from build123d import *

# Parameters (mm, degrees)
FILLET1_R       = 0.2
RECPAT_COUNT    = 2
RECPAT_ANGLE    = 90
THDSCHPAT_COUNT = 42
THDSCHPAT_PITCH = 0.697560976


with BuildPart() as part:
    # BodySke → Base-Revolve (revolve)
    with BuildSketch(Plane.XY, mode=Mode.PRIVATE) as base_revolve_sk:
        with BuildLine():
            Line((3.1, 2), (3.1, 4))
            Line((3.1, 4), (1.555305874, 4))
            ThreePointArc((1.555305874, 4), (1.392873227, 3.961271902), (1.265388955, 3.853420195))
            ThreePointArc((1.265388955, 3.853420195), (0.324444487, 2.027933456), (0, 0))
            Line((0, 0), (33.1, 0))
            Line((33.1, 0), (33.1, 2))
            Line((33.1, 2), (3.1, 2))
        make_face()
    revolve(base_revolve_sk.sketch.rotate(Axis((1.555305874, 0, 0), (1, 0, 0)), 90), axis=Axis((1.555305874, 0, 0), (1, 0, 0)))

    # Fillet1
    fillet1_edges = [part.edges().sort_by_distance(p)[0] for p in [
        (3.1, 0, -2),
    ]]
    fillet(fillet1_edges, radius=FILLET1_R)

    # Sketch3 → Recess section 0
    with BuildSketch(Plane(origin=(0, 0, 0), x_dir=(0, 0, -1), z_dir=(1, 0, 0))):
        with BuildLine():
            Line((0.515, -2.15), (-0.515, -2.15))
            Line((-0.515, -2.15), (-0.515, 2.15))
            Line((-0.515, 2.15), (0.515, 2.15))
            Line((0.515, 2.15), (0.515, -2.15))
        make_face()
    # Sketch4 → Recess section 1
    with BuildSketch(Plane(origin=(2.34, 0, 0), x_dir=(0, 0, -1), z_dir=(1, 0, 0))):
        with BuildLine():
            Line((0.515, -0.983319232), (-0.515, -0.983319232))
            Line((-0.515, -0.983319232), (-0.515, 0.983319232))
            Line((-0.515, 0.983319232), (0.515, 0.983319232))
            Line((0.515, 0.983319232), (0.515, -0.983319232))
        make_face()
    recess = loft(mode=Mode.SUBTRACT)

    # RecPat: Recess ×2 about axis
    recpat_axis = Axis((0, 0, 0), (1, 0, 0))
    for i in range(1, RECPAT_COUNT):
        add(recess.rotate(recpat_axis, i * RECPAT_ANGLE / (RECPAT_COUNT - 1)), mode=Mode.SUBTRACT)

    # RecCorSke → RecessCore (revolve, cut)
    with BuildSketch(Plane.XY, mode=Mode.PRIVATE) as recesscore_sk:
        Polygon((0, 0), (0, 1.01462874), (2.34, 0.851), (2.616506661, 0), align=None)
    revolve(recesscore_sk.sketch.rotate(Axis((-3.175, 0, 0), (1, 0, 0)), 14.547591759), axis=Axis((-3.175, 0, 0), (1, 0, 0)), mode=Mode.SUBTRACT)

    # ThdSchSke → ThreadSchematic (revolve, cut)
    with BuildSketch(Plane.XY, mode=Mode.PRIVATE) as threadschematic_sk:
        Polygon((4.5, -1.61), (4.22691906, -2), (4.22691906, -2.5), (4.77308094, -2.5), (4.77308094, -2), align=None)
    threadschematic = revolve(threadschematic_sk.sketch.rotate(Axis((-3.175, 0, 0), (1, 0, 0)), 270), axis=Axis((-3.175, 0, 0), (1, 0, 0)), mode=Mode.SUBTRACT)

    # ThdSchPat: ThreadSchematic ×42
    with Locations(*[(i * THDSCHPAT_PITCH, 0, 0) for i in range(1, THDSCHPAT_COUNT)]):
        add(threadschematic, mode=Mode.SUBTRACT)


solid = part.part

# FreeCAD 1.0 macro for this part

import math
import FreeCAD as App
import Part
import Sketcher
Q = App.Units.Quantity


def edges_at(feature, points):
    """Names of the edges that pass closest to the given points."""
    edges = feature.Shape.Edges
    near = lambda p: min(range(len(edges)), key=lambda i: edges[i].distToShape(Part.Vertex(*p))[0])
    return sorted({f"Edge{near(p) + 1}" for p in points})

doc = App.newDocument("Part")
body = doc.addObject("PartDesign::Body", "Body")

sketch1 = doc.addObject("Sketcher::SketchObject", "Sketch")
body.addObject(sketch1)
sketch1.AttachmentSupport = (doc.XY_Plane, [""])
sketch1.MapMode = "FlatFace"
sketch1.addGeometry(Part.LineSegment(App.Vector(3.1, 2, 0), App.Vector(3.1, 4, 0)), False)
sketch1.addGeometry(Part.LineSegment(App.Vector(3.1, 4, 0), App.Vector(1.56, 4, 0)), False)
sketch1.addGeometry(Part.ArcOfCircle(Part.Circle(App.Vector(1.56, 3.64, 0), App.Vector(0, 0, 1), 0.36), math.radians(90), math.radians(144)), False)
sketch1.addGeometry(Part.ArcOfCircle(Part.Circle(App.Vector(6.5, 0, 0), App.Vector(0, 0, 1), 6.5), math.radians(144), math.radians(180)), False)
sketch1.addGeometry(Part.LineSegment(App.Vector(0, 0, 0), App.Vector(33.1, 0, 0)), False)
sketch1.addGeometry(Part.LineSegment(App.Vector(33.1, 0, 0), App.Vector(33.1, 2, 0)), False)
sketch1.addGeometry(Part.LineSegment(App.Vector(33.1, 2, 0), App.Vector(3.1, 2, 0)), False)
sketch1.addConstraint(Sketcher.Constraint("Coincident", 0, 2, 1, 1))
sketch1.addConstraint(Sketcher.Constraint("Tangent", 1, 2, 2, 1))
sketch1.addConstraint(Sketcher.Constraint("Tangent", 2, 2, 3, 1))
sketch1.addConstraint(Sketcher.Constraint("Coincident", 3, 2, 4, 1))
sketch1.addConstraint(Sketcher.Constraint("Coincident", 4, 2, 5, 1))
sketch1.addConstraint(Sketcher.Constraint("Coincident", 5, 2, 6, 1))
sketch1.addConstraint(Sketcher.Constraint("Coincident", 6, 2, 0, 1))
sketch1.addConstraint(Sketcher.Constraint("Vertical", 0))
sketch1.addConstraint(Sketcher.Constraint("Horizontal", 1))
sketch1.addConstraint(Sketcher.Constraint("Horizontal", 4))
sketch1.addConstraint(Sketcher.Constraint("Vertical", 5))
sketch1.addConstraint(Sketcher.Constraint("Horizontal", 6))
sketch1.addConstraint(Sketcher.Constraint("Coincident", 3, 2, -1, 1))
sketch1.addConstraint(Sketcher.Constraint("PointOnObject", 3, 3, -1))
sketch1.addConstraint(Sketcher.Constraint("Equal", 0, 5))
sketch1.addConstraint(Sketcher.Constraint("Radius", 3, 6.5))
sketch1.addConstraint(Sketcher.Constraint("DistanceX", 6, 2, 6, 1, 30.0))
sketch1.addConstraint(Sketcher.Constraint("DistanceY", 0, 1, 0, 2, 2.0))
sketch1.addConstraint(Sketcher.Constraint("Radius", 2, 0.36))
sketch1.addConstraint(Sketcher.Constraint("DistanceX", 4, 1, 4, 2, 33.1))
revolution = doc.addObject("PartDesign::Revolution", "Revolution")
body.addObject(revolution)
revolution.Profile = sketch1
revolution.ReferenceAxis = (sketch1, ["H_Axis"])
revolution.Angle = 360
doc.recompute()

fillet = doc.addObject("PartDesign::Fillet", "Fillet")
body.addObject(fillet)
fillet.Base = (revolution, edges_at(revolution, [(3.1, 0, -2)]))
fillet.Radius = 0.2

sketch2 = doc.addObject("Sketcher::SketchObject", "Sketch001")
body.addObject(sketch2)
sketch2.AttachmentSupport = (doc.YZ_Plane, [""])
sketch2.MapMode = "FlatFace"
sketch2.addGeometry(Part.LineSegment(App.Vector(-2.1, 0.5, 0), App.Vector(-2.1, -0.5, 0)), False)
sketch2.addGeometry(Part.LineSegment(App.Vector(-2.1, -0.5, 0), App.Vector(2.1, -0.5, 0)), False)
sketch2.addGeometry(Part.LineSegment(App.Vector(2.1, -0.5, 0), App.Vector(2.1, 0.5, 0)), False)
sketch2.addGeometry(Part.LineSegment(App.Vector(2.1, 0.5, 0), App.Vector(-2.1, 0.5, 0)), False)
sketch2.addConstraint(Sketcher.Constraint("Coincident", 0, 2, 1, 1))
sketch2.addConstraint(Sketcher.Constraint("Coincident", 1, 2, 2, 1))
sketch2.addConstraint(Sketcher.Constraint("Coincident", 2, 2, 3, 1))
sketch2.addConstraint(Sketcher.Constraint("Coincident", 3, 2, 0, 1))
sketch2.addConstraint(Sketcher.Constraint("Vertical", 0))
sketch2.addConstraint(Sketcher.Constraint("Horizontal", 1))
sketch2.addConstraint(Sketcher.Constraint("Vertical", 2))
sketch2.addConstraint(Sketcher.Constraint("Horizontal", 3))
sketch2.addConstraint(Sketcher.Constraint("Symmetric", 0, 2, 2, 2, -1, 1))
sketch2.addConstraint(Sketcher.Constraint("DistanceX", 1, 1, 1, 2, 4.3))
sketch2.addConstraint(Sketcher.Constraint("DistanceY", 0, 2, 0, 1, 1.03))

sketch3 = doc.addObject("Sketcher::SketchObject", "Sketch002")
body.addObject(sketch3)
sketch3.AttachmentSupport = (doc.YZ_Plane, [""])
sketch3.MapMode = "FlatFace"
sketch3.AttachmentOffset = App.Placement(App.Vector(0, 0, 2.34), App.Rotation())
sketch3.addGeometry(Part.LineSegment(App.Vector(-1, 0.5, 0), App.Vector(-1, -0.5, 0)), False)
sketch3.addGeometry(Part.LineSegment(App.Vector(-1, -0.5, 0), App.Vector(1, -0.5, 0)), False)
sketch3.addGeometry(Part.LineSegment(App.Vector(1, -0.5, 0), App.Vector(1, 0.5, 0)), False)
sketch3.addGeometry(Part.LineSegment(App.Vector(1, 0.5, 0), App.Vector(-1, 0.5, 0)), False)
sketch3.addConstraint(Sketcher.Constraint("Coincident", 0, 2, 1, 1))
sketch3.addConstraint(Sketcher.Constraint("Coincident", 1, 2, 2, 1))
sketch3.addConstraint(Sketcher.Constraint("Coincident", 2, 2, 3, 1))
sketch3.addConstraint(Sketcher.Constraint("Coincident", 3, 2, 0, 1))
sketch3.addConstraint(Sketcher.Constraint("Vertical", 0))
sketch3.addConstraint(Sketcher.Constraint("Horizontal", 1))
sketch3.addConstraint(Sketcher.Constraint("Vertical", 2))
sketch3.addConstraint(Sketcher.Constraint("Horizontal", 3))
sketch3.addConstraint(Sketcher.Constraint("Symmetric", 0, 2, 2, 2, -1, 1))
sketch3.addConstraint(Sketcher.Constraint("DistanceY", 0, 2, 0, 1, 1.03))
sketch3.addConstraint(Sketcher.Constraint("DistanceX", 1, 1, 1, 2, 1.966638))

subtractiveloft = doc.addObject("PartDesign::SubtractiveLoft", "SubtractiveLoft")
body.addObject(subtractiveloft)
subtractiveloft.Profile = sketch2
subtractiveloft.Sections = [sketch3]
doc.recompute()

polarpattern = doc.addObject("PartDesign::PolarPattern", "PolarPattern")
body.addObject(polarpattern)
polarpattern.Originals = [subtractiveloft]
polarpattern.Axis = (doc.X_Axis, [""])
polarpattern.Angle = 90
polarpattern.Occurrences = 2
body.Tip = polarpattern

sketch4 = doc.addObject("Sketcher::SketchObject", "Sketch003")
body.addObject(sketch4)
sketch4.AttachmentSupport = (doc.XY_Plane, [""])
sketch4.MapMode = "FlatFace"
sketch4.addGeometry(Part.LineSegment(App.Vector(0, 1, 0), App.Vector(0, 0, 0)), False)
sketch4.addGeometry(Part.LineSegment(App.Vector(0, 0, 0), App.Vector(2.6, 0, 0)), False)
sketch4.addGeometry(Part.LineSegment(App.Vector(2.6, 0, 0), App.Vector(2.3, 0.9, 0)), False)
sketch4.addGeometry(Part.LineSegment(App.Vector(2.3, 0.9, 0), App.Vector(0, 1, 0)), False)
sketch4.addConstraint(Sketcher.Constraint("Coincident", 0, 2, 1, 1))
sketch4.addConstraint(Sketcher.Constraint("Coincident", 1, 2, 2, 1))
sketch4.addConstraint(Sketcher.Constraint("Coincident", 2, 2, 3, 1))
sketch4.addConstraint(Sketcher.Constraint("Coincident", 3, 2, 0, 1))
sketch4.addConstraint(Sketcher.Constraint("Vertical", 0))
sketch4.addConstraint(Sketcher.Constraint("Horizontal", 1))
sketch4.addConstraint(Sketcher.Constraint("Coincident", 0, 2, -1, 1))
sketch4.addConstraint(Sketcher.Constraint("Angle", 2, Q("108 deg")))
sketch4.addConstraint(Sketcher.Constraint("Angle", 3, Q("176 deg")))
sketch4.addConstraint(Sketcher.Constraint("DistanceX", -1, 1, 2, 2, 2.34))
sketch4.addConstraint(Sketcher.Constraint("DistanceY", -1, 1, 2, 2, 0.851))
groove = doc.addObject("PartDesign::Groove", "Groove")
body.addObject(groove)
groove.Profile = sketch4
groove.ReferenceAxis = (sketch4, ["H_Axis"])
groove.Angle = 360

sketch5 = doc.addObject("Sketcher::SketchObject", "Sketch004")
body.addObject(sketch5)
sketch5.AttachmentSupport = (doc.XY_Plane, [""])
sketch5.MapMode = "FlatFace"
sketch5.addGeometry(Part.LineSegment(App.Vector(4.5, -1.61, 0), App.Vector(4.23, -2, 0)), False)
sketch5.addGeometry(Part.LineSegment(App.Vector(4.23, -2, 0), App.Vector(4.23, -2.5, 0)), False)
sketch5.addGeometry(Part.LineSegment(App.Vector(4.23, -2.5, 0), App.Vector(4.77, -2.5, 0)), False)
sketch5.addGeometry(Part.LineSegment(App.Vector(4.77, -2.5, 0), App.Vector(4.77, -2, 0)), False)
sketch5.addGeometry(Part.LineSegment(App.Vector(4.77, -2, 0), App.Vector(4.5, -1.61, 0)), False)
sketch5.addConstraint(Sketcher.Constraint("Coincident", 0, 2, 1, 1))
sketch5.addConstraint(Sketcher.Constraint("Coincident", 1, 2, 2, 1))
sketch5.addConstraint(Sketcher.Constraint("Coincident", 2, 2, 3, 1))
sketch5.addConstraint(Sketcher.Constraint("Coincident", 3, 2, 4, 1))
sketch5.addConstraint(Sketcher.Constraint("Coincident", 4, 2, 0, 1))
sketch5.addConstraint(Sketcher.Constraint("Vertical", 1))
sketch5.addConstraint(Sketcher.Constraint("Horizontal", 2))
sketch5.addConstraint(Sketcher.Constraint("Vertical", 3))
sketch5.addConstraint(Sketcher.Constraint("Horizontal", 0, 2, 3, 2))
sketch5.addConstraint(Sketcher.Constraint("Equal", 0, 4))
sketch5.addConstraint(Sketcher.Constraint("Angle", 0, Q("-125 deg")))
sketch5.addConstraint(Sketcher.Constraint("DistanceY", 1, 2, 1, 1, 0.5))
sketch5.addConstraint(Sketcher.Constraint("DistanceY", 0, 2, -1, 1, 2.0))
sketch5.addConstraint(Sketcher.Constraint("DistanceX", -1, 1, 4, 2, 4.5))
sketch5.addConstraint(Sketcher.Constraint("DistanceY", 4, 2, -1, 1, 1.61))
groove2 = doc.addObject("PartDesign::Groove", "Groove001")
body.addObject(groove2)
groove2.Profile = sketch5
groove2.ReferenceAxis = (sketch5, ["H_Axis"])
groove2.Angle = 360
doc.recompute()

linearpattern = doc.addObject("PartDesign::LinearPattern", "LinearPattern")
body.addObject(linearpattern)
linearpattern.Originals = [groove2]
linearpattern.Direction = (doc.X_Axis, [""])
linearpattern.Mode = "offset"
linearpattern.Offset = 0.697561
linearpattern.Occurrences = 42
body.Tip = linearpattern

doc.recompute()
